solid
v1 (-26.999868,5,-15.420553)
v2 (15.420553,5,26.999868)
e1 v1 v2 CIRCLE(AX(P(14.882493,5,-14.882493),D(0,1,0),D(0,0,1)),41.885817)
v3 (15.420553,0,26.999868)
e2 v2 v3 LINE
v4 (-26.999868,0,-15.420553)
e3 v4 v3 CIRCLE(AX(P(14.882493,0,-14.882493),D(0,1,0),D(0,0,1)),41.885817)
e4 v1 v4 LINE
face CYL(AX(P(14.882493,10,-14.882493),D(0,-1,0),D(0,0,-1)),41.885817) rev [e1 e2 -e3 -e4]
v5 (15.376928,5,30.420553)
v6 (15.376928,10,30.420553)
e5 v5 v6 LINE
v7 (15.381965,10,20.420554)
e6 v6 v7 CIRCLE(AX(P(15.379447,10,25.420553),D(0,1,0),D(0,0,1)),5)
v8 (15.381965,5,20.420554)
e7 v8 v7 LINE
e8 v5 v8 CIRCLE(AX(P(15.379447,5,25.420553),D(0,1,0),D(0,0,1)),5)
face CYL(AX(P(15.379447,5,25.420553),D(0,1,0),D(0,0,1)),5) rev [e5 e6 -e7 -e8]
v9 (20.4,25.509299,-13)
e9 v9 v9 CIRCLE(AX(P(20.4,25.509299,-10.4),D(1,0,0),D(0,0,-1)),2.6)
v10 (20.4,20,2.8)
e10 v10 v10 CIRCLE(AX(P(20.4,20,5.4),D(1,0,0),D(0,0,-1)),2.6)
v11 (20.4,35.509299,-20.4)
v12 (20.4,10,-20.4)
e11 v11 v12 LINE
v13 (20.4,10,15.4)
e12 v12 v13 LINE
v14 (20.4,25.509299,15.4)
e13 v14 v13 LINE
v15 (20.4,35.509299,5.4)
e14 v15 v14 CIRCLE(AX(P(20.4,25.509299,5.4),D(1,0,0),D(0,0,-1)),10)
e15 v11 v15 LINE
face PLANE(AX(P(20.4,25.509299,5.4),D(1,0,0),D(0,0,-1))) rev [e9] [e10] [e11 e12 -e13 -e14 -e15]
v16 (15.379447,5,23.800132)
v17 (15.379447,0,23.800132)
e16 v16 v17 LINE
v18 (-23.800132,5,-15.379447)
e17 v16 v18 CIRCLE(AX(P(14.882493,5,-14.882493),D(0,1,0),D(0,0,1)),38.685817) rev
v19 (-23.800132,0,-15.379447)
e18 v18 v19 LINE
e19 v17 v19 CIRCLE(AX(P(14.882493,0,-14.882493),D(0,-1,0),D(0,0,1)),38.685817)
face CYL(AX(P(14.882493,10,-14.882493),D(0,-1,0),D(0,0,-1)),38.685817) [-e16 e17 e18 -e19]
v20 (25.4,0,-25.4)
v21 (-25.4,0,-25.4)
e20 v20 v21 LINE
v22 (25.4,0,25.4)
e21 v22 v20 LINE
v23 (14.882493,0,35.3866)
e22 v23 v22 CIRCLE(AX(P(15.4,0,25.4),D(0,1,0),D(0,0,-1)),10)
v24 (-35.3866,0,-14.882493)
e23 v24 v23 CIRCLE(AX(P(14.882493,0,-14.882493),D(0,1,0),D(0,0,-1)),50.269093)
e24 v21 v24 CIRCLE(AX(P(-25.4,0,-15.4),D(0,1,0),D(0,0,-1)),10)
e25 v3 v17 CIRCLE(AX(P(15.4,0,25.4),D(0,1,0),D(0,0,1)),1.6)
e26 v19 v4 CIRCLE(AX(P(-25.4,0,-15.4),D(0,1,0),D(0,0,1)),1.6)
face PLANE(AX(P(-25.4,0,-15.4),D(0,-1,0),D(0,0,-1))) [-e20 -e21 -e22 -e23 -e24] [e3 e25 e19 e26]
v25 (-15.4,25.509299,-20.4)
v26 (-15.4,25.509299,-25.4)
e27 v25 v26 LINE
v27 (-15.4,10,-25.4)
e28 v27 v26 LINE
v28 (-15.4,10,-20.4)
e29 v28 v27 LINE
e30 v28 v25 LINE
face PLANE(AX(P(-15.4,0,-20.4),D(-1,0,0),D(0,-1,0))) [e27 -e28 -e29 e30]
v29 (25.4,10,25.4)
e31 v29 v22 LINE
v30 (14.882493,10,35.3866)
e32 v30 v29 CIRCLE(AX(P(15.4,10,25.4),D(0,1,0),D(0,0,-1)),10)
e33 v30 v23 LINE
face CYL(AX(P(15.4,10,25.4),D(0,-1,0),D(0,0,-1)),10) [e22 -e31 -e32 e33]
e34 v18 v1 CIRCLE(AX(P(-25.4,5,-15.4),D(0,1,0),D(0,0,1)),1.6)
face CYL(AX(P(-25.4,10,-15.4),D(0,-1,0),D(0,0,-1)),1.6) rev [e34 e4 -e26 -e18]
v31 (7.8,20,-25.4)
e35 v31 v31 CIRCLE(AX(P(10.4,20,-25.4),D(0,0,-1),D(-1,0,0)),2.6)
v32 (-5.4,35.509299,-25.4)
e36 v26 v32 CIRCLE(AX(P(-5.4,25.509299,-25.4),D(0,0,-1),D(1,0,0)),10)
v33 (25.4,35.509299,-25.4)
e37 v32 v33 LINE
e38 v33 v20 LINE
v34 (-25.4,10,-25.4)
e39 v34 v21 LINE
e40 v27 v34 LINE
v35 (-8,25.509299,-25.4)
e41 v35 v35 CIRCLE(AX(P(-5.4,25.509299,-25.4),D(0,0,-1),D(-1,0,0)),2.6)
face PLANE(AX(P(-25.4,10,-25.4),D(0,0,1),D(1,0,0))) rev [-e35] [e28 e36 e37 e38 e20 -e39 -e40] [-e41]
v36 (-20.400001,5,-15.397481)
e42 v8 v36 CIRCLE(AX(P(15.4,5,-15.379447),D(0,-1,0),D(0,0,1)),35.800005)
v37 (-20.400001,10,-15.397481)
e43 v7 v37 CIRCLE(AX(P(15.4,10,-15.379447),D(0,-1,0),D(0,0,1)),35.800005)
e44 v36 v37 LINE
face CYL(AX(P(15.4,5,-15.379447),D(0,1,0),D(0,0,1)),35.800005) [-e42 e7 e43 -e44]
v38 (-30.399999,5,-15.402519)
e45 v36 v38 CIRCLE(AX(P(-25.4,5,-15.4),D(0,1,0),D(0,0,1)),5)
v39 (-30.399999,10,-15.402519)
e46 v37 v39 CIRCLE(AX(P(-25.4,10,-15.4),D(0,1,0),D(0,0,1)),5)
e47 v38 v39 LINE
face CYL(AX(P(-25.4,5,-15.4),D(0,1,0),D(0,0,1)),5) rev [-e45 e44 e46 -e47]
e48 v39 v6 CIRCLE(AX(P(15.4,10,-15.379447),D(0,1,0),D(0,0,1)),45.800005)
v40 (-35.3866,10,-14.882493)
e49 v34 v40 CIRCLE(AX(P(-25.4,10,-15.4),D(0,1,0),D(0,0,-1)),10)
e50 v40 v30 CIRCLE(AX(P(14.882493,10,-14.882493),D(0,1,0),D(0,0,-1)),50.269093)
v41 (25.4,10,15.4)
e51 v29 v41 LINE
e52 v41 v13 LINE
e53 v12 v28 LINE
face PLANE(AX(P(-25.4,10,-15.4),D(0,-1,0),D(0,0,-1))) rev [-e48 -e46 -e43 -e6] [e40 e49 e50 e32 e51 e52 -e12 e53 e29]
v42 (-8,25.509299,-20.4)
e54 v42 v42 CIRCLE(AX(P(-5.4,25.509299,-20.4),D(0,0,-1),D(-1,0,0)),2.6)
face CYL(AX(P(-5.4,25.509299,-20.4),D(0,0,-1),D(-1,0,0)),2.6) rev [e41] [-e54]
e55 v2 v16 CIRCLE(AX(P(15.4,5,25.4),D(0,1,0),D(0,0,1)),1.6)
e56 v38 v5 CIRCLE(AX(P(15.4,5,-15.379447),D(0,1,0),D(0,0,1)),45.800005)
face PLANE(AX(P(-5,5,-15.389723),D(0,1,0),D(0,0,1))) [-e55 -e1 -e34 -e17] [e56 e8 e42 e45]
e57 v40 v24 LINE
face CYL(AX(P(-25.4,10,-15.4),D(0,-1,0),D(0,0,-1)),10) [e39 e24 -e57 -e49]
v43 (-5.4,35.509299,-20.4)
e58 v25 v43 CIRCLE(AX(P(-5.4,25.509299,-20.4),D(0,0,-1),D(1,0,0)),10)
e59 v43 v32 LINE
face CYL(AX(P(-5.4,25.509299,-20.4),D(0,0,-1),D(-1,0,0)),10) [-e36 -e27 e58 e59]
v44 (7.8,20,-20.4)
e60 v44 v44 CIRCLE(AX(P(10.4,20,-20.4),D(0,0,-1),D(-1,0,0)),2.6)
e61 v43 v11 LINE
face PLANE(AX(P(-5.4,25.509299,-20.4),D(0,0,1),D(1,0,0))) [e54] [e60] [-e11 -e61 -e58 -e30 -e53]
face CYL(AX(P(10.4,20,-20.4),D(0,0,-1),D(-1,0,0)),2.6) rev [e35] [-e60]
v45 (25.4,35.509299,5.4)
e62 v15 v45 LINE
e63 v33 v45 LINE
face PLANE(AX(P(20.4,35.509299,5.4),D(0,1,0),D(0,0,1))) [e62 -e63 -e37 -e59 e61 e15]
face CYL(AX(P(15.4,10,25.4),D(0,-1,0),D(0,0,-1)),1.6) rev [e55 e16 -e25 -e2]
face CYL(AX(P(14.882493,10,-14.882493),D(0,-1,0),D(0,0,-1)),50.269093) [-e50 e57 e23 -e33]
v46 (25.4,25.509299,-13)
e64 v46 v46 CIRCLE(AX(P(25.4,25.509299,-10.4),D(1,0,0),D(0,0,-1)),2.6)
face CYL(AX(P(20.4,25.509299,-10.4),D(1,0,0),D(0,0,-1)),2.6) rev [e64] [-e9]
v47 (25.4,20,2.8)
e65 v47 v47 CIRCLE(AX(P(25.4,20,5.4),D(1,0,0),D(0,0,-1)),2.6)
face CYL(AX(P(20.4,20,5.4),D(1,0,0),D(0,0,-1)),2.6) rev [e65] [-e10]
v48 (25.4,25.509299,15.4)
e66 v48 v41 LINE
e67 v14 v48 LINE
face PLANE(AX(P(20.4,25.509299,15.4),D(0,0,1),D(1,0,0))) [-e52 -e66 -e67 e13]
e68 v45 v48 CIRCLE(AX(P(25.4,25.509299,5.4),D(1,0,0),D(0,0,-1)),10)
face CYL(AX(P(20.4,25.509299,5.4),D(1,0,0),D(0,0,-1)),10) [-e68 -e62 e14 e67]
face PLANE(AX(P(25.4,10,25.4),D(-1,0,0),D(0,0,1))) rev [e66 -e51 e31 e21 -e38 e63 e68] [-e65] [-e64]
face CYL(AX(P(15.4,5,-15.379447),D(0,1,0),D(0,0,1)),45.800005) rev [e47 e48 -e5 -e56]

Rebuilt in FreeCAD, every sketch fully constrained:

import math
import FreeCAD as App
import Part
import Sketcher

doc = App.newDocument("Part")
body = doc.addObject("PartDesign::Body", "Body")

# Sketch on XZ plane
sketch1 = body.newObject("Sketcher::SketchObject", "Sketch")
sketch1.AttachmentSupport = (doc.getObject("XZ_Plane"), [""])
sketch1.MapMode = "FlatFace"
sketch1.addGeometry([
    Part.LineSegment(App.Vector(25.4, -25.4, 0), App.Vector(-25.4, -25.4, 0)),  # 0
    Part.ArcOfCircle(Part.Circle(App.Vector(-25.4, -15.4, 0), App.Vector(0, 0, 1), 10), math.radians(177), math.radians(270)),  # 1
    Part.ArcOfCircle(Part.Circle(App.Vector(14.9, -14.9, 0), App.Vector(0, 0, 1), 50.3), math.radians(90), math.radians(180)),  # 2
    Part.ArcOfCircle(Part.Circle(App.Vector(15.4, 25.4, 0), App.Vector(0, 0, 1), 10), math.radians(0), math.radians(93)),  # 3
    Part.LineSegment(App.Vector(25.4, 25.4, 0), App.Vector(25.4, -25.4, 0)),  # 4
    Part.ArcOfCircle(Part.Circle(App.Vector(-25.4, -15.4, 0), App.Vector(0, 0, 1), 1.6), math.radians(-179), math.radians(1)),  # 5
    Part.ArcOfCircle(Part.Circle(App.Vector(14.9, -14.9, 0), App.Vector(0, 0, 1), 38.7), math.radians(89), math.radians(181)),  # 6
    Part.ArcOfCircle(Part.Circle(App.Vector(15.4, 25.4, 0), App.Vector(0, 0, 1), 1.6), math.radians(-91), math.radians(89)),  # 7
    Part.ArcOfCircle(Part.Circle(App.Vector(14.9, -14.9, 0), App.Vector(0, 0, 1), 41.9), math.radians(89), math.radians(181)),  # 8
], False)
sketch1.addConstraint([
    Sketcher.Constraint("Tangent", 0, 2, 1, 2),
    Sketcher.Constraint("Coincident", 1, 1, 2, 2),
    Sketcher.Constraint("Coincident", 2, 1, 3, 2),
    Sketcher.Constraint("Tangent", 3, 1, 4, 1),
    Sketcher.Constraint("Coincident", 4, 2, 0, 1),
    Sketcher.Constraint("Tangent", 5, 2, 6, 2),
    Sketcher.Constraint("Tangent", 6, 1, 7, 1),
    Sketcher.Constraint("Tangent", 7, 2, 8, 1),
    Sketcher.Constraint("Tangent", 8, 2, 5, 1),
    Sketcher.Constraint("Horizontal", 0),
    Sketcher.Constraint("Vertical", 4),
    Sketcher.Constraint("Coincident", 5, 3, 1, 3),
    Sketcher.Constraint("Coincident", 6, 3, 2, 3),
    Sketcher.Constraint("Coincident", 7, 3, 3, 3),
    Sketcher.Constraint("Coincident", 8, 3, 2, 3),
    Sketcher.Constraint("Equal", 1, 3),
    Sketcher.Constraint("Symmetric", 0, 2, 3, 1, -1, 1),
    Sketcher.Constraint("Horizontal", 8, 3, 1, 1),
    Sketcher.Constraint("Vertical", 8, 3, 2, 1),
    Sketcher.Constraint("Radius", 1, 10.0),
    Sketcher.Constraint("Radius", 5, 1.6),
    Sketcher.Constraint("DistanceX", 0, 2, 0, 1, 50.8),
    Sketcher.Constraint("Radius", 2, 50.269093),
])
pad1 = body.newObject("PartDesign::Pad", "Pad")
pad1.Profile = sketch1
pad1.Length = 10
pad1.Reversed = True

# Sketch on XZ plane
sketch2 = body.newObject("Sketcher::SketchObject", "Sketch001")
sketch2.AttachmentSupport = (doc.getObject("XZ_Plane"), [""])
sketch2.MapMode = "FlatFace"
sketch2.AttachmentOffset = App.Placement(App.Vector(0, 0, -10), App.Rotation())
sketch2.addGeometry([
    Part.ArcOfCircle(Part.Circle(App.Vector(15, -15, 0), App.Vector(0, 0, 1), 46), math.radians(90), math.radians(180)),
    Part.ArcOfCircle(Part.Circle(App.Vector(15, 25, 0), App.Vector(0, 0, 1), 5), math.radians(-90), math.radians(90)),
    Part.ArcOfCircle(Part.Circle(App.Vector(15, -15, 0), App.Vector(0, 0, 1), 36), math.radians(90), math.radians(180)),
    Part.ArcOfCircle(Part.Circle(App.Vector(-25, -15, 0), App.Vector(0, 0, 1), 5), math.radians(-180), math.radians(0)),
], False)
sketch2.addConstraint([
    Sketcher.Constraint("Tangent", 0, 1, 1, 2),
    Sketcher.Constraint("Tangent", 1, 1, 2, 1),
    Sketcher.Constraint("Tangent", 2, 2, 3, 2),
    Sketcher.Constraint("Tangent", 3, 1, 0, 2),
    Sketcher.Constraint("Coincident", 2, 3, 0, 3),
    Sketcher.Constraint("Radius", 1, 5.0),
    Sketcher.Constraint("DistanceX", -1, 1, 0, 3, 15.4),
    Sketcher.Constraint("DistanceX", 3, 3, -1, 1, 25.4),
    Sketcher.Constraint("DistanceY", 3, 3, -1, 1, 15.4),
    Sketcher.Constraint("DistanceY", 3, 1, -1, 1, 15.402519),
    Sketcher.Constraint("DistanceX", 0, 1, 1, 3, 0.002519),
])
pocket1 = body.newObject("PartDesign::Pocket", "Pocket")
pocket1.Profile = sketch2
pocket1.Length = 5
pocket1.Reversed = True

# Sketch on YZ plane
sketch3 = body.newObject("Sketcher::SketchObject", "Sketch002")
sketch3.AttachmentSupport = (doc.getObject("YZ_Plane"), [""])
sketch3.MapMode = "FlatFace"
sketch3.AttachmentOffset = App.Placement(App.Vector(0, 0, 25.4), App.Rotation())
sketch3.addGeometry([
    Part.LineSegment(App.Vector(25.5, 15.4, 0), App.Vector(0, 15.4, 0)),  # 0
    Part.LineSegment(App.Vector(0, 15.4, 0), App.Vector(0, -25.4, 0)),  # 1
    Part.LineSegment(App.Vector(0, -25.4, 0), App.Vector(35.5, -25.4, 0)),  # 2
    Part.LineSegment(App.Vector(35.5, -25.4, 0), App.Vector(35.5, 5.4, 0)),  # 3
    Part.ArcOfCircle(Part.Circle(App.Vector(25.5, 5.4, 0), App.Vector(0, 0, 1), 10), math.radians(0), math.radians(90)),  # 4
    Part.Circle(App.Vector(20, 5.4, 0), App.Vector(0, 0, 1), 2.6),  # 5
    Part.Circle(App.Vector(25.5, -10.4, 0), App.Vector(0, 0, 1), 2.6),  # 6
], False)
sketch3.addConstraint([
    Sketcher.Constraint("Coincident", 0, 2, 1, 1),
    Sketcher.Constraint("Coincident", 1, 2, 2, 1),
    Sketcher.Constraint("Coincident", 2, 2, 3, 1),
    Sketcher.Constraint("Tangent", 3, 2, 4, 1),
    Sketcher.Constraint("Tangent", 4, 2, 0, 1),
    Sketcher.Constraint("Horizontal", 0),
    Sketcher.Constraint("Vertical", 1),
    Sketcher.Constraint("Horizontal", 2),
    Sketcher.Constraint("Vertical", 3),
    Sketcher.Constraint("Equal", 5, 6),
    Sketcher.Constraint("PointOnObject", 0, 2, -2),
    Sketcher.Constraint("Horizontal", 4, 3, 5, 3),
    Sketcher.Constraint("Vertical", 4, 3, 6, 3),
    Sketcher.Constraint("Radius", 4, 10.0),
    Sketcher.Constraint("Diameter", 5, 5.2),
    Sketcher.Constraint("DistanceY", 1, 2, 1, 1, 40.8),
    Sketcher.Constraint("DistanceX", -1, 1, 5, 3, 20.0),
    Sketcher.Constraint("DistanceY", 1, 2, 6, 3, 15.0),
    Sketcher.Constraint("DistanceY", -1, 1, 4, 3, 5.4),
    Sketcher.Constraint("DistanceX", 0, 2, 0, 1, 25.509299),
])
pad2 = body.newObject("PartDesign::Pad", "Pad001")
pad2.Profile = sketch3
pad2.Length = 5
pad2.Reversed = True

# Sketch on XY plane
sketch4 = body.newObject("Sketcher::SketchObject", "Sketch003")
sketch4.AttachmentSupport = (doc.getObject("XY_Plane"), [""])
sketch4.MapMode = "FlatFace"
sketch4.AttachmentOffset = App.Placement(App.Vector(0, 0, -25.4), App.Rotation())
sketch4.addGeometry([
    Part.LineSegment(App.Vector(-5.4, 35.5, 0), App.Vector(25.4, 35.5, 0)),  # 0
    Part.LineSegment(App.Vector(25.4, 35.5, 0), App.Vector(25.4, 0, 0)),  # 1
    Part.LineSegment(App.Vector(25.4, 0, 0), App.Vector(-15.4, 0, 0)),  # 2
    Part.LineSegment(App.Vector(-15.4, 0, 0), App.Vector(-15.4, 25.5, 0)),  # 3
    Part.ArcOfCircle(Part.Circle(App.Vector(-5.4, 25.5, 0), App.Vector(0, 0, 1), 10), math.radians(90), math.radians(180)),  # 4
    Part.Circle(App.Vector(10.4, 20, 0), App.Vector(0, 0, 1), 2.6),  # 5
    Part.Circle(App.Vector(-5.4, 25.5, 0), App.Vector(0, 0, 1), 2.6),  # 6
], False)
sketch4.addConstraint([
    Sketcher.Constraint("Coincident", 0, 2, 1, 1),
    Sketcher.Constraint("Coincident", 1, 2, 2, 1),
    Sketcher.Constraint("Coincident", 2, 2, 3, 1),
    Sketcher.Constraint("Tangent", 3, 2, 4, 2),
    Sketcher.Constraint("Tangent", 4, 1, 0, 1),
    Sketcher.Constraint("Horizontal", 0),
    Sketcher.Constraint("Vertical", 1),
    Sketcher.Constraint("Horizontal", 2),
    Sketcher.Constraint("Vertical", 3),
    Sketcher.Constraint("Coincident", 6, 3, 4, 3),
    Sketcher.Constraint("Equal", 5, 6),
    Sketcher.Constraint("PointOnObject", 1, 2, -1),
    Sketcher.Constraint("Radius", 4, 10.0),
    Sketcher.Constraint("Diameter", 5, 5.2),
    Sketcher.Constraint("DistanceX", 0, 1, 0, 2, 30.8),
    Sketcher.Constraint("DistanceY", -1, 1, 5, 3, 20.0),
    Sketcher.Constraint("DistanceX", 5, 3, 0, 2, 15.0),
    Sketcher.Constraint("DistanceX", 4, 3, -1, 1, 5.4),
    Sketcher.Constraint("DistanceY", 1, 2, 1, 1, 35.509299),
])
pad3 = body.newObject("PartDesign::Pad", "Pad002")
pad3.Profile = sketch4
pad3.Length = 5

doc.recompute()
